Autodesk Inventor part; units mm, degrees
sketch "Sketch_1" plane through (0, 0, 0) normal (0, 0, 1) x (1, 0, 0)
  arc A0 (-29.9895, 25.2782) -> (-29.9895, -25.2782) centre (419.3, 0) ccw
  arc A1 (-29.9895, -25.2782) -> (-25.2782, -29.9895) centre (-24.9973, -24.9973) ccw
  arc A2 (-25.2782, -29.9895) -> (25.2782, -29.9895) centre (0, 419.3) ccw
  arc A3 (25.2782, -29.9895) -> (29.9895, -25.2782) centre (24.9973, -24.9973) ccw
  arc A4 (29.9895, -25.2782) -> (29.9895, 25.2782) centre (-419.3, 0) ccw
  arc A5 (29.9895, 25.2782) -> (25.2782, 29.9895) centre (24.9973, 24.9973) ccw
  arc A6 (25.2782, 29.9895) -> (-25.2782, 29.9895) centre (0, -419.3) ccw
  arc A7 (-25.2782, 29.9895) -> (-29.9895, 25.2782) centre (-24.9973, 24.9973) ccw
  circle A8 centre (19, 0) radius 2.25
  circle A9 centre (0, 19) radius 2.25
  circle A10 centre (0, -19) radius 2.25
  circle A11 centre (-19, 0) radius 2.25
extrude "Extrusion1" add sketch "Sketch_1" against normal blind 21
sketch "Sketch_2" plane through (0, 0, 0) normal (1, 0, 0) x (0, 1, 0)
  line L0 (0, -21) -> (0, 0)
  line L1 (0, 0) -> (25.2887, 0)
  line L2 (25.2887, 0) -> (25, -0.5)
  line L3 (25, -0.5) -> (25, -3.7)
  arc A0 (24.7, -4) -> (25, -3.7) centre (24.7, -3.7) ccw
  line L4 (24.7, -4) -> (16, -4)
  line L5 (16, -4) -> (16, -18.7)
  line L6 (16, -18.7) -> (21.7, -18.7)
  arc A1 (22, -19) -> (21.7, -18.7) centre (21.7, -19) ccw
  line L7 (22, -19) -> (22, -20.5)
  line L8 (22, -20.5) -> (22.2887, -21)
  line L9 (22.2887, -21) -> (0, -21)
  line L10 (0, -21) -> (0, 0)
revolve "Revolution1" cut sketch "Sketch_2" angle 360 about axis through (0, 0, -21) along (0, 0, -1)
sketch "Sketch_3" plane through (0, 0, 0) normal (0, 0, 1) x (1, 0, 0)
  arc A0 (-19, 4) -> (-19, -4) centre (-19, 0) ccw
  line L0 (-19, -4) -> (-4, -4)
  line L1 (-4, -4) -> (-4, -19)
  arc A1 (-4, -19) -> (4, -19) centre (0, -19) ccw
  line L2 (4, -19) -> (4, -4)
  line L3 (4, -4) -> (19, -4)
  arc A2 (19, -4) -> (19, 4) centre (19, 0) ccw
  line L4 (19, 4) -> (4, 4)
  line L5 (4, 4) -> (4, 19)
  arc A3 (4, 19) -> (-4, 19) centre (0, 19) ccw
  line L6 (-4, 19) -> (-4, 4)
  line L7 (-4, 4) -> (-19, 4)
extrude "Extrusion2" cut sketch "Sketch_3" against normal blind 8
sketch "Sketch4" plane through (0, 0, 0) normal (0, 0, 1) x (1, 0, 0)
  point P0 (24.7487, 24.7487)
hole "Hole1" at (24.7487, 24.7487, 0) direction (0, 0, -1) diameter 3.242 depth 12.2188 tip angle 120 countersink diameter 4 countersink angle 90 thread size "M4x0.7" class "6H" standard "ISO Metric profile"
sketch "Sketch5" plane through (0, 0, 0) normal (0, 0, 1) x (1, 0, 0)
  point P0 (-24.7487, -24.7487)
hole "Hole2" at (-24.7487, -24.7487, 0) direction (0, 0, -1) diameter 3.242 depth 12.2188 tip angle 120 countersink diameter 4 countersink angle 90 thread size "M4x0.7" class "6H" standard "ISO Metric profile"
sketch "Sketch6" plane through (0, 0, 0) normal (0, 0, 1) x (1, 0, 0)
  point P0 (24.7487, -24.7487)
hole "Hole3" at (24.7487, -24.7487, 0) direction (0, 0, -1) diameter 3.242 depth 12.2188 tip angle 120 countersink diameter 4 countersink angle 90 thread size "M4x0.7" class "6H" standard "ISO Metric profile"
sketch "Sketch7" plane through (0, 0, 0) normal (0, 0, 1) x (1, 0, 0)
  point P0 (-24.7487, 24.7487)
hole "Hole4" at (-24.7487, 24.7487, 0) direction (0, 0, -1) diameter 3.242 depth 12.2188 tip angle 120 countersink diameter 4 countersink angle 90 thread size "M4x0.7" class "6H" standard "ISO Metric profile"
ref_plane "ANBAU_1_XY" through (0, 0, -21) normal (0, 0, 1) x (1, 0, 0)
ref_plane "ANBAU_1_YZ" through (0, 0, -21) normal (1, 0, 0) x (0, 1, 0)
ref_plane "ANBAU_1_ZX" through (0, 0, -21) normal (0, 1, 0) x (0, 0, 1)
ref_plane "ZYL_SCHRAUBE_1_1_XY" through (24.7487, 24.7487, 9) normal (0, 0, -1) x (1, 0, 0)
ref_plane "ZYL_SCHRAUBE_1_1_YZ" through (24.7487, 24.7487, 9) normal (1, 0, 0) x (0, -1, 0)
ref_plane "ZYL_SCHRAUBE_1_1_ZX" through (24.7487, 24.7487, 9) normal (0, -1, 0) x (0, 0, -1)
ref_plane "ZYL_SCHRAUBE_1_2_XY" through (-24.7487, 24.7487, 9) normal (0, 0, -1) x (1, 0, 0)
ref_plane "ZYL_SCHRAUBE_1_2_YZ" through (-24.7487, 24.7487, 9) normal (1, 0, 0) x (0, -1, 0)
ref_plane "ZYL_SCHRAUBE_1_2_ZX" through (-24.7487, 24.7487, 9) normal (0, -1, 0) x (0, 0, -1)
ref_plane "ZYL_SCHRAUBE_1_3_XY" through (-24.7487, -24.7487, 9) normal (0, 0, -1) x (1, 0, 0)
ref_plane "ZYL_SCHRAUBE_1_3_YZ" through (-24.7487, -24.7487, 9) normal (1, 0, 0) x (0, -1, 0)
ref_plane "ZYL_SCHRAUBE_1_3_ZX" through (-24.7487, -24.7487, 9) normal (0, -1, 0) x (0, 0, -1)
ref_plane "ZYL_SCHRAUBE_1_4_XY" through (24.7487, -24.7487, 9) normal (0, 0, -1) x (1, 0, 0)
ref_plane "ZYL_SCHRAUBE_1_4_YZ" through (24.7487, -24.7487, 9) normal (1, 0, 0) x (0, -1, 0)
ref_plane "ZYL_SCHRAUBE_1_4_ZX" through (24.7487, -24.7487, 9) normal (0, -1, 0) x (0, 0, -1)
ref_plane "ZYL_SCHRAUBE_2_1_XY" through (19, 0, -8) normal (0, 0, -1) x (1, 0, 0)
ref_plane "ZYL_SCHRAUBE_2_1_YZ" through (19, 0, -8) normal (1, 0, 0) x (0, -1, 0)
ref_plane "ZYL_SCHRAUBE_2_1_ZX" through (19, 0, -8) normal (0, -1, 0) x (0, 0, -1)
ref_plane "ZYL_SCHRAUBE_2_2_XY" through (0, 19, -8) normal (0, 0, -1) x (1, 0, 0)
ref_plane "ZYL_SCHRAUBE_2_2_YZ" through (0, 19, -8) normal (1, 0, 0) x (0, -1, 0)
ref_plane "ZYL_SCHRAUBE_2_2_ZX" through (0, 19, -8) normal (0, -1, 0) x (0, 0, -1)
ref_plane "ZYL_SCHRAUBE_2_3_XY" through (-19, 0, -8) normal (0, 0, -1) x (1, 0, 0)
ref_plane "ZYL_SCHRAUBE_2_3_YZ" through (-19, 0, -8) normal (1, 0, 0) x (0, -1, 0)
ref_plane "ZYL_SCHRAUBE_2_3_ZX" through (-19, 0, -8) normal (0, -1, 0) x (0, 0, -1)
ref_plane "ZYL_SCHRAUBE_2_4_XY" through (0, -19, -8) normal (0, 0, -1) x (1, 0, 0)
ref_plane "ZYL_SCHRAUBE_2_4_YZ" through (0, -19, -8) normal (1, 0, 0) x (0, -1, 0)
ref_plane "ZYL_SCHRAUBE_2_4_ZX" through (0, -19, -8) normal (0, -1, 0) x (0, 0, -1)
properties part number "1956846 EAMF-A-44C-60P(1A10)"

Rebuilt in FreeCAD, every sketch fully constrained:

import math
import FreeCAD as App
import Part
import Sketcher

V = App.Vector

doc = App.newDocument("Part")
params = doc.addObject("Spreadsheet::Sheet", "Params")
for row, (alias, value) in enumerate([
    ("sketch1_radius", "5 mm"),
    ("sketch1_radius2", "450 mm"),
    ("sketch1_diameter", "4.5 mm"),
    ("pad1_length", "21 mm"),
    ("sketch2_radius", "0.3 mm"),
    ("sketch2_height", "21 mm"),
    ("sketch2_width", "5.7 mm"),
    ("sketch2_width2", "8.7 mm"),
    ("sketch2_height2", "1.5 mm"),
    ("groove_angle", "360 deg"),
    ("sketch3_radius", "4 mm"),
    ("sketch3_width", "15 mm"),
    ("pocket1_length", "8 mm"),
    ("hole_diameter", "3.242 mm"),
    ("hole_depth", "12.2188 mm"),
    ("hole_csink_diameter", "4 mm"),
    ("hole2_diameter", "3.242 mm"),
    ("hole2_depth", "12.2188 mm"),
    ("hole2_csink_diameter", "4 mm"),
    ("hole3_diameter", "3.242 mm"),
    ("hole3_depth", "12.2188 mm"),
    ("hole3_csink_diameter", "4 mm"),
    ("hole4_diameter", "3.242 mm"),
    ("hole4_depth", "12.2188 mm"),
    ("hole4_csink_diameter", "4 mm"),
], start=1):
    params.set(f"A{row}", alias)
    params.set(f"B{row}", "=" + value)
    params.setAlias(f"B{row}", alias)

body = doc.addObject("PartDesign::Body", "Body")

# Sketch on XY plane
sketch1 = body.newObject("Sketcher::SketchObject", "Sketch")
sketch1.AttachmentSupport = (doc.getObject("XY_Plane"), [""])
sketch1.MapMode = "FlatFace"
sketch1.addGeometry([
    Part.ArcOfCircle(Part.Circle(V(-24.9973, 24.9973, 0), V(0, 0, 1), 5.000097), math.radians(93.22051), math.radians(176.77949)),  # 0
    Part.ArcOfCircle(Part.Circle(V(419.3, 0, 0), V(0, 0, 1), 450.000047), math.radians(176.779785), math.radians(183.220215)),  # 1
    Part.ArcOfCircle(Part.Circle(V(-24.9973, -24.9973, 0), V(0, 0, 1), 5.000097), math.radians(-176.77949), math.radians(-93.22051)),  # 2
    Part.ArcOfCircle(Part.Circle(V(0, 419.3, 0), V(0, 0, 1), 450.000047), math.radians(-93.220215), math.radians(-86.779785)),  # 3
    Part.ArcOfCircle(Part.Circle(V(24.9973, -24.9973, 0), V(0, 0, 1), 5.000097), math.radians(-86.77949), math.radians(-3.22051)),  # 4
    Part.ArcOfCircle(Part.Circle(V(-419.3, 0, 0), V(0, 0, 1), 450.000047), math.radians(-3.220215), math.radians(3.220215)),  # 5
    Part.ArcOfCircle(Part.Circle(V(24.9973, 24.9973, 0), V(0, 0, 1), 5.000097), math.radians(3.22051), math.radians(86.77949)),  # 6
    Part.ArcOfCircle(Part.Circle(V(0, -419.3, 0), V(0, 0, 1), 450.000047), math.radians(86.779785), math.radians(93.220215)),  # 7
    Part.Circle(V(0, -19, 0), V(0, 0, 1), 2.25),  # 8
    Part.Circle(V(-19, 0, 0), V(0, 0, 1), 2.25),  # 9
    Part.Circle(V(0, 19, 0), V(0, 0, 1), 2.25),  # 10
    Part.Circle(V(19, 0, 0), V(0, 0, 1), 2.25),  # 11
], False)
sketch1.addConstraint([
    Sketcher.Constraint("Tangent", 0, 2, 1, 1),
    Sketcher.Constraint("Tangent", 1, 2, 2, 1),
    Sketcher.Constraint("Tangent", 2, 2, 3, 1),
    Sketcher.Constraint("Tangent", 3, 2, 4, 1),
    Sketcher.Constraint("Tangent", 4, 2, 5, 1),
    Sketcher.Constraint("Tangent", 5, 2, 6, 1),
    Sketcher.Constraint("Tangent", 6, 2, 7, 1),
    Sketcher.Constraint("Tangent", 7, 2, 0, 1),
    Sketcher.Constraint("Equal", 0, 2),
    Sketcher.Constraint("Equal", 1, 3),
    Sketcher.Constraint("Equal", 2, 4),
    Sketcher.Constraint("Equal", 3, 5),
    Sketcher.Constraint("Equal", 4, 6),
    Sketcher.Constraint("Equal", 5, 7),
    Sketcher.Constraint("Equal", 8, 9),
    Sketcher.Constraint("Equal", 9, 10),
    Sketcher.Constraint("Equal", 10, 11),
    Sketcher.Constraint("Symmetric", 0, 3, 4, 3, -1, 1),
    Sketcher.Constraint("Symmetric", 2, 3, 6, 3, -1, 1),
    Sketcher.Constraint("Symmetric", 8, 3, 10, 3, -1, 1),
    Sketcher.Constraint("Symmetric", 9, 3, 11, 3, -1, 1),
    Sketcher.Constraint("Symmetric", 2, 3, 4, 3, -2),
    Sketcher.Constraint("PointOnObject", 8, 3, -2),
    Sketcher.Constraint("PointOnObject", 9, 3, -1),
    Sketcher.Constraint("Radius", 0, 5.0),
    Sketcher.Constraint("Radius", 1, 450.0),
    Sketcher.Constraint("Diameter", 8, 4.5),
    Sketcher.Constraint("DistanceY", 8, 3, -1, 1, 19.0),
    Sketcher.Constraint("DistanceX", 9, 3, -1, 1, 19.0),
    Sketcher.Constraint("DistanceX", -1, 1, 1, 3, 419.3),
    Sketcher.Constraint("DistanceY", -1, 1, 3, 3, 419.3),
])
sketch1.setExpression("Constraints[24]", "Params.sketch1_radius")
sketch1.setExpression("Constraints[25]", "Params.sketch1_radius2")
sketch1.setExpression("Constraints[26]", "Params.sketch1_diameter")
pad1 = body.newObject("PartDesign::Pad", "Pad")
pad1.Profile = sketch1
pad1.setExpression("Length", "Params.pad1_length")
pad1.Reversed = True

# Sketch on YZ plane
sketch2 = body.newObject("Sketcher::SketchObject", "Sketch001")
sketch2.AttachmentSupport = (doc.getObject("YZ_Plane"), [""])
sketch2.MapMode = "FlatFace"
sketch2.addGeometry([
    Part.LineSegment(V(0, 0, 0), V(0, -21, 0)),  # 0
    Part.LineSegment(V(0, -21, 0), V(22.2887, -21, 0)),  # 1
    Part.LineSegment(V(22.2887, -21, 0), V(22, -20.5, 0)),  # 2
    Part.LineSegment(V(22, -20.5, 0), V(22, -19, 0)),  # 3
    Part.ArcOfCircle(Part.Circle(V(21.7, -19, 0), V(0, 0, 1), 0.3), math.radians(0), math.radians(90)),  # 4
    Part.LineSegment(V(21.7, -18.7, 0), V(16, -18.7, 0)),  # 5
    Part.LineSegment(V(16, -18.7, 0), V(16, -4, 0)),  # 6
    Part.LineSegment(V(16, -4, 0), V(24.7, -4, 0)),  # 7
    Part.ArcOfCircle(Part.Circle(V(24.7, -3.7, 0), V(0, 0, 1), 0.3), math.radians(-90), math.radians(0)),  # 8
    Part.LineSegment(V(25, -3.7, 0), V(25, -0.5, 0)),  # 9
    Part.LineSegment(V(25, -0.5, 0), V(25.2887, 0, 0)),  # 10
    Part.LineSegment(V(25.2887, 0, 0), V(0, 0, 0)),  # 11
], False)
sketch2.addConstraint([
    Sketcher.Constraint("Coincident", 0, 2, 1, 1),
    Sketcher.Constraint("Coincident", 1, 2, 2, 1),
    Sketcher.Constraint("Coincident", 2, 2, 3, 1),
    Sketcher.Constraint("Tangent", 3, 2, 4, 1),
    Sketcher.Constraint("Tangent", 4, 2, 5, 1),
    Sketcher.Constraint("Coincident", 5, 2, 6, 1),
    Sketcher.Constraint("Coincident", 6, 2, 7, 1),
    Sketcher.Constraint("Tangent", 7, 2, 8, 1),
    Sketcher.Constraint("Tangent", 8, 2, 9, 1),
    Sketcher.Constraint("Coincident", 9, 2, 10, 1),
    Sketcher.Constraint("Coincident", 10, 2, 11, 1),
    Sketcher.Constraint("Coincident", 11, 2, 0, 1),
    Sketcher.Constraint("Vertical", 0),
    Sketcher.Constraint("Horizontal", 1),
    Sketcher.Constraint("Vertical", 3),
    Sketcher.Constraint("Horizontal", 5),
    Sketcher.Constraint("Vertical", 6),
    Sketcher.Constraint("Horizontal", 7),
    Sketcher.Constraint("Vertical", 9),
    Sketcher.Constraint("Horizontal", 11),
    Sketcher.Constraint("Coincident", 11, 2, -1, 1),
    Sketcher.Constraint("Equal", 4, 8),
    Sketcher.Constraint("Equal", 2, 10),
    Sketcher.Constraint("Radius", 4, 0.3),
    Sketcher.Constraint("DistanceY", 0, 2, 0, 1, 21.0),
    Sketcher.Constraint("DistanceX", 5, 2, 5, 1, 5.7),
    Sketcher.Constraint("DistanceX", 7, 1, 7, 2, 8.7),
    Sketcher.Constraint("DistanceY", 3, 1, 3, 2, 1.5),
    Sketcher.Constraint("DistanceY", 6, 1, 6, 2, 14.7),
    Sketcher.Constraint("DistanceY", 9, 1, 9, 2, 3.2),
    Sketcher.Constraint("DistanceY", 4, 3, -1, 1, 19.0),
    Sketcher.Constraint("DistanceX", -1, 1, 2, 2, 22.0),
    Sketcher.Constraint("DistanceX", 1, 1, 1, 2, 22.2887),
])
sketch2.setExpression("Constraints[23]", "Params.sketch2_radius")
sketch2.setExpression("Constraints[24]", "Params.sketch2_height")
sketch2.setExpression("Constraints[25]", "Params.sketch2_width")
sketch2.setExpression("Constraints[26]", "Params.sketch2_width2")
sketch2.setExpression("Constraints[27]", "Params.sketch2_height2")
groove = body.newObject("PartDesign::Groove", "Groove")
groove.Profile = sketch2
groove.ReferenceAxis = (sketch2, ["V_Axis"])
groove.setExpression("Angle", "Params.groove_angle")

# Sketch on XY plane
sketch3 = body.newObject("Sketcher::SketchObject", "Sketch002")
sketch3.AttachmentSupport = (doc.getObject("XY_Plane"), [""])
sketch3.MapMode = "FlatFace"
sketch3.addGeometry([
    Part.LineSegment(V(-4, 4, 0), V(-19, 4, 0)),  # 0
    Part.ArcOfCircle(Part.Circle(V(-19, 0, 0), V(0, 0, 1), 4), math.radians(90), math.radians(270)),  # 1
    Part.LineSegment(V(-19, -4, 0), V(-4, -4, 0)),  # 2
    Part.LineSegment(V(-4, -4, 0), V(-4, -19, 0)),  # 3
    Part.ArcOfCircle(Part.Circle(V(0, -19, 0), V(0, 0, 1), 4), math.radians(180), math.radians(360)),  # 4
    Part.LineSegment(V(4, -19, 0), V(4, -4, 0)),  # 5
    Part.LineSegment(V(4, -4, 0), V(19, -4, 0)),  # 6
    Part.ArcOfCircle(Part.Circle(V(19, 0, 0), V(0, 0, 1), 4), math.radians(-90), math.radians(90)),  # 7
    Part.LineSegment(V(19, 4, 0), V(4, 4, 0)),  # 8
    Part.LineSegment(V(4, 4, 0), V(4, 19, 0)),  # 9
    Part.ArcOfCircle(Part.Circle(V(0, 19, 0), V(0, 0, 1), 4), math.radians(0), math.radians(180)),  # 10
    Part.LineSegment(V(-4, 19, 0), V(-4, 4, 0)),  # 11
], False)
sketch3.addConstraint([
    Sketcher.Constraint("Tangent", 0, 2, 1, 1),
    Sketcher.Constraint("Tangent", 1, 2, 2, 1),
    Sketcher.Constraint("Coincident", 2, 2, 3, 1),
    Sketcher.Constraint("Tangent", 3, 2, 4, 1),
    Sketcher.Constraint("Tangent", 4, 2, 5, 1),
    Sketcher.Constraint("Coincident", 5, 2, 6, 1),
    Sketcher.Constraint("Tangent", 6, 2, 7, 1),
    Sketcher.Constraint("Tangent", 7, 2, 8, 1),
    Sketcher.Constraint("Coincident", 8, 2, 9, 1),
    Sketcher.Constraint("Tangent", 9, 2, 10, 1),
    Sketcher.Constraint("Tangent", 10, 2, 11, 1),
    Sketcher.Constraint("Coincident", 11, 2, 0, 1),
    Sketcher.Constraint("Horizontal", 0),
    Sketcher.Constraint("Horizontal", 2),
    Sketcher.Constraint("Vertical", 3),
    Sketcher.Constraint("Vertical", 5),
    Sketcher.Constraint("Horizontal", 6),
    Sketcher.Constraint("Horizontal", 8),
    Sketcher.Constraint("Vertical", 9),
    Sketcher.Constraint("Vertical", 11),
    Sketcher.Constraint("Equal", 1, 4),
    Sketcher.Constraint("Equal", 4, 7),
    Sketcher.Constraint("Equal", 7, 10),
    Sketcher.Constraint("Symmetric", 1, 3, 7, 3, -1, 1),
    Sketcher.Constraint("Symmetric", 4, 3, 10, 3, -1, 1),
    Sketcher.Constraint("Symmetric", 2, 2, 5, 2, -2),
    Sketcher.Constraint("Equal", 8, 3),
    Sketcher.Constraint("Radius", 1, 4.0),
    Sketcher.Constraint("DistanceX", 0, 2, 0, 1, 15.0),
])
sketch3.setExpression("Constraints[27]", "Params.sketch3_radius")
sketch3.setExpression("Constraints[28]", "Params.sketch3_width")
pocket1 = body.newObject("PartDesign::Pocket", "Pocket")
pocket1.Profile = sketch3
pocket1.setExpression("Length", "Params.pocket1_length")

# Sketch on XY plane
sketch4 = body.newObject("Sketcher::SketchObject", "Sketch003")
sketch4.AttachmentSupport = (doc.getObject("XY_Plane"), [""])
sketch4.MapMode = "FlatFace"
sketch4.addGeometry(Part.Circle(V(24.7487, 24.7487, 0), V(0, 0, 1), 1.621), False)
sketch4.addConstraint([
    Sketcher.Constraint("Diameter", 0, 3.242),
    Sketcher.Constraint("DistanceX", -1, 1, 0, 3, 24.7487),
    Sketcher.Constraint("DistanceY", -1, 1, 0, 3, 24.7487),
])
doc.recompute()
hole = body.newObject("PartDesign::Hole", "Hole")
hole.Profile = sketch4
hole.ThreadType = "None"
hole.setExpression("Diameter", "Params.hole_diameter")
hole.DepthType = "Dimension"
hole.setExpression("Depth", "Params.hole_depth")
hole.DrillPoint = "Angled"
hole.DrillPointAngle = 120
hole.HoleCutType = "Countersink"
hole.setExpression("HoleCutDiameter", "Params.hole_csink_diameter")
hole.HoleCutCountersinkAngle = 90

# Sketch on XY plane
sketch5 = body.newObject("Sketcher::SketchObject", "Sketch004")
sketch5.AttachmentSupport = (doc.getObject("XY_Plane"), [""])
sketch5.MapMode = "FlatFace"
sketch5.addGeometry(Part.Circle(V(-24.7487, -24.7487, 0), V(0, 0, 1), 1.621), False)
sketch5.addConstraint([
    Sketcher.Constraint("Diameter", 0, 3.242),
    Sketcher.Constraint("DistanceX", 0, 3, -1, 1, 24.7487),
    Sketcher.Constraint("DistanceY", 0, 3, -1, 1, 24.7487),
])
doc.recompute()
hole2 = body.newObject("PartDesign::Hole", "Hole001")
hole2.Profile = sketch5
hole2.ThreadType = "None"
hole2.setExpression("Diameter", "Params.hole2_diameter")
hole2.DepthType = "Dimension"
hole2.setExpression("Depth", "Params.hole2_depth")
hole2.DrillPoint = "Angled"
hole2.DrillPointAngle = 120
hole2.HoleCutType = "Countersink"
hole2.setExpression("HoleCutDiameter", "Params.hole2_csink_diameter")
hole2.HoleCutCountersinkAngle = 90

# Sketch on XY plane
sketch6 = body.newObject("Sketcher::SketchObject", "Sketch005")
sketch6.AttachmentSupport = (doc.getObject("XY_Plane"), [""])
sketch6.MapMode = "FlatFace"
sketch6.addGeometry(Part.Circle(V(24.7487, -24.7487, 0), V(0, 0, 1), 1.621), False)
sketch6.addConstraint([
    Sketcher.Constraint("Diameter", 0, 3.242),
    Sketcher.Constraint("DistanceX", -1, 1, 0, 3, 24.7487),
    Sketcher.Constraint("DistanceY", 0, 3, -1, 1, 24.7487),
])
doc.recompute()
hole3 = body.newObject("PartDesign::Hole", "Hole002")
hole3.Profile = sketch6
hole3.ThreadType = "None"
hole3.setExpression("Diameter", "Params.hole3_diameter")
hole3.DepthType = "Dimension"
hole3.setExpression("Depth", "Params.hole3_depth")
hole3.DrillPoint = "Angled"
hole3.DrillPointAngle = 120
hole3.HoleCutType = "Countersink"
hole3.setExpression("HoleCutDiameter", "Params.hole3_csink_diameter")
hole3.HoleCutCountersinkAngle = 90

# Sketch on XY plane
sketch7 = body.newObject("Sketcher::SketchObject", "Sketch006")
sketch7.AttachmentSupport = (doc.getObject("XY_Plane"), [""])
sketch7.MapMode = "FlatFace"
sketch7.addGeometry(Part.Circle(V(-24.7487, 24.7487, 0), V(0, 0, 1), 1.621), False)
sketch7.addConstraint([
    Sketcher.Constraint("Diameter", 0, 3.242),
    Sketcher.Constraint("DistanceX", 0, 3, -1, 1, 24.7487),
    Sketcher.Constraint("DistanceY", -1, 1, 0, 3, 24.7487),
])
doc.recompute()
hole4 = body.newObject("PartDesign::Hole", "Hole003")
hole4.Profile = sketch7
hole4.ThreadType = "None"
hole4.setExpression("Diameter", "Params.hole4_diameter")
hole4.DepthType = "Dimension"
hole4.setExpression("Depth", "Params.hole4_depth")
hole4.DrillPoint = "Angled"
hole4.DrillPointAngle = 120
hole4.HoleCutType = "Countersink"
hole4.setExpression("HoleCutDiameter", "Params.hole4_csink_diameter")
hole4.HoleCutCountersinkAngle = 90

doc.recompute()
